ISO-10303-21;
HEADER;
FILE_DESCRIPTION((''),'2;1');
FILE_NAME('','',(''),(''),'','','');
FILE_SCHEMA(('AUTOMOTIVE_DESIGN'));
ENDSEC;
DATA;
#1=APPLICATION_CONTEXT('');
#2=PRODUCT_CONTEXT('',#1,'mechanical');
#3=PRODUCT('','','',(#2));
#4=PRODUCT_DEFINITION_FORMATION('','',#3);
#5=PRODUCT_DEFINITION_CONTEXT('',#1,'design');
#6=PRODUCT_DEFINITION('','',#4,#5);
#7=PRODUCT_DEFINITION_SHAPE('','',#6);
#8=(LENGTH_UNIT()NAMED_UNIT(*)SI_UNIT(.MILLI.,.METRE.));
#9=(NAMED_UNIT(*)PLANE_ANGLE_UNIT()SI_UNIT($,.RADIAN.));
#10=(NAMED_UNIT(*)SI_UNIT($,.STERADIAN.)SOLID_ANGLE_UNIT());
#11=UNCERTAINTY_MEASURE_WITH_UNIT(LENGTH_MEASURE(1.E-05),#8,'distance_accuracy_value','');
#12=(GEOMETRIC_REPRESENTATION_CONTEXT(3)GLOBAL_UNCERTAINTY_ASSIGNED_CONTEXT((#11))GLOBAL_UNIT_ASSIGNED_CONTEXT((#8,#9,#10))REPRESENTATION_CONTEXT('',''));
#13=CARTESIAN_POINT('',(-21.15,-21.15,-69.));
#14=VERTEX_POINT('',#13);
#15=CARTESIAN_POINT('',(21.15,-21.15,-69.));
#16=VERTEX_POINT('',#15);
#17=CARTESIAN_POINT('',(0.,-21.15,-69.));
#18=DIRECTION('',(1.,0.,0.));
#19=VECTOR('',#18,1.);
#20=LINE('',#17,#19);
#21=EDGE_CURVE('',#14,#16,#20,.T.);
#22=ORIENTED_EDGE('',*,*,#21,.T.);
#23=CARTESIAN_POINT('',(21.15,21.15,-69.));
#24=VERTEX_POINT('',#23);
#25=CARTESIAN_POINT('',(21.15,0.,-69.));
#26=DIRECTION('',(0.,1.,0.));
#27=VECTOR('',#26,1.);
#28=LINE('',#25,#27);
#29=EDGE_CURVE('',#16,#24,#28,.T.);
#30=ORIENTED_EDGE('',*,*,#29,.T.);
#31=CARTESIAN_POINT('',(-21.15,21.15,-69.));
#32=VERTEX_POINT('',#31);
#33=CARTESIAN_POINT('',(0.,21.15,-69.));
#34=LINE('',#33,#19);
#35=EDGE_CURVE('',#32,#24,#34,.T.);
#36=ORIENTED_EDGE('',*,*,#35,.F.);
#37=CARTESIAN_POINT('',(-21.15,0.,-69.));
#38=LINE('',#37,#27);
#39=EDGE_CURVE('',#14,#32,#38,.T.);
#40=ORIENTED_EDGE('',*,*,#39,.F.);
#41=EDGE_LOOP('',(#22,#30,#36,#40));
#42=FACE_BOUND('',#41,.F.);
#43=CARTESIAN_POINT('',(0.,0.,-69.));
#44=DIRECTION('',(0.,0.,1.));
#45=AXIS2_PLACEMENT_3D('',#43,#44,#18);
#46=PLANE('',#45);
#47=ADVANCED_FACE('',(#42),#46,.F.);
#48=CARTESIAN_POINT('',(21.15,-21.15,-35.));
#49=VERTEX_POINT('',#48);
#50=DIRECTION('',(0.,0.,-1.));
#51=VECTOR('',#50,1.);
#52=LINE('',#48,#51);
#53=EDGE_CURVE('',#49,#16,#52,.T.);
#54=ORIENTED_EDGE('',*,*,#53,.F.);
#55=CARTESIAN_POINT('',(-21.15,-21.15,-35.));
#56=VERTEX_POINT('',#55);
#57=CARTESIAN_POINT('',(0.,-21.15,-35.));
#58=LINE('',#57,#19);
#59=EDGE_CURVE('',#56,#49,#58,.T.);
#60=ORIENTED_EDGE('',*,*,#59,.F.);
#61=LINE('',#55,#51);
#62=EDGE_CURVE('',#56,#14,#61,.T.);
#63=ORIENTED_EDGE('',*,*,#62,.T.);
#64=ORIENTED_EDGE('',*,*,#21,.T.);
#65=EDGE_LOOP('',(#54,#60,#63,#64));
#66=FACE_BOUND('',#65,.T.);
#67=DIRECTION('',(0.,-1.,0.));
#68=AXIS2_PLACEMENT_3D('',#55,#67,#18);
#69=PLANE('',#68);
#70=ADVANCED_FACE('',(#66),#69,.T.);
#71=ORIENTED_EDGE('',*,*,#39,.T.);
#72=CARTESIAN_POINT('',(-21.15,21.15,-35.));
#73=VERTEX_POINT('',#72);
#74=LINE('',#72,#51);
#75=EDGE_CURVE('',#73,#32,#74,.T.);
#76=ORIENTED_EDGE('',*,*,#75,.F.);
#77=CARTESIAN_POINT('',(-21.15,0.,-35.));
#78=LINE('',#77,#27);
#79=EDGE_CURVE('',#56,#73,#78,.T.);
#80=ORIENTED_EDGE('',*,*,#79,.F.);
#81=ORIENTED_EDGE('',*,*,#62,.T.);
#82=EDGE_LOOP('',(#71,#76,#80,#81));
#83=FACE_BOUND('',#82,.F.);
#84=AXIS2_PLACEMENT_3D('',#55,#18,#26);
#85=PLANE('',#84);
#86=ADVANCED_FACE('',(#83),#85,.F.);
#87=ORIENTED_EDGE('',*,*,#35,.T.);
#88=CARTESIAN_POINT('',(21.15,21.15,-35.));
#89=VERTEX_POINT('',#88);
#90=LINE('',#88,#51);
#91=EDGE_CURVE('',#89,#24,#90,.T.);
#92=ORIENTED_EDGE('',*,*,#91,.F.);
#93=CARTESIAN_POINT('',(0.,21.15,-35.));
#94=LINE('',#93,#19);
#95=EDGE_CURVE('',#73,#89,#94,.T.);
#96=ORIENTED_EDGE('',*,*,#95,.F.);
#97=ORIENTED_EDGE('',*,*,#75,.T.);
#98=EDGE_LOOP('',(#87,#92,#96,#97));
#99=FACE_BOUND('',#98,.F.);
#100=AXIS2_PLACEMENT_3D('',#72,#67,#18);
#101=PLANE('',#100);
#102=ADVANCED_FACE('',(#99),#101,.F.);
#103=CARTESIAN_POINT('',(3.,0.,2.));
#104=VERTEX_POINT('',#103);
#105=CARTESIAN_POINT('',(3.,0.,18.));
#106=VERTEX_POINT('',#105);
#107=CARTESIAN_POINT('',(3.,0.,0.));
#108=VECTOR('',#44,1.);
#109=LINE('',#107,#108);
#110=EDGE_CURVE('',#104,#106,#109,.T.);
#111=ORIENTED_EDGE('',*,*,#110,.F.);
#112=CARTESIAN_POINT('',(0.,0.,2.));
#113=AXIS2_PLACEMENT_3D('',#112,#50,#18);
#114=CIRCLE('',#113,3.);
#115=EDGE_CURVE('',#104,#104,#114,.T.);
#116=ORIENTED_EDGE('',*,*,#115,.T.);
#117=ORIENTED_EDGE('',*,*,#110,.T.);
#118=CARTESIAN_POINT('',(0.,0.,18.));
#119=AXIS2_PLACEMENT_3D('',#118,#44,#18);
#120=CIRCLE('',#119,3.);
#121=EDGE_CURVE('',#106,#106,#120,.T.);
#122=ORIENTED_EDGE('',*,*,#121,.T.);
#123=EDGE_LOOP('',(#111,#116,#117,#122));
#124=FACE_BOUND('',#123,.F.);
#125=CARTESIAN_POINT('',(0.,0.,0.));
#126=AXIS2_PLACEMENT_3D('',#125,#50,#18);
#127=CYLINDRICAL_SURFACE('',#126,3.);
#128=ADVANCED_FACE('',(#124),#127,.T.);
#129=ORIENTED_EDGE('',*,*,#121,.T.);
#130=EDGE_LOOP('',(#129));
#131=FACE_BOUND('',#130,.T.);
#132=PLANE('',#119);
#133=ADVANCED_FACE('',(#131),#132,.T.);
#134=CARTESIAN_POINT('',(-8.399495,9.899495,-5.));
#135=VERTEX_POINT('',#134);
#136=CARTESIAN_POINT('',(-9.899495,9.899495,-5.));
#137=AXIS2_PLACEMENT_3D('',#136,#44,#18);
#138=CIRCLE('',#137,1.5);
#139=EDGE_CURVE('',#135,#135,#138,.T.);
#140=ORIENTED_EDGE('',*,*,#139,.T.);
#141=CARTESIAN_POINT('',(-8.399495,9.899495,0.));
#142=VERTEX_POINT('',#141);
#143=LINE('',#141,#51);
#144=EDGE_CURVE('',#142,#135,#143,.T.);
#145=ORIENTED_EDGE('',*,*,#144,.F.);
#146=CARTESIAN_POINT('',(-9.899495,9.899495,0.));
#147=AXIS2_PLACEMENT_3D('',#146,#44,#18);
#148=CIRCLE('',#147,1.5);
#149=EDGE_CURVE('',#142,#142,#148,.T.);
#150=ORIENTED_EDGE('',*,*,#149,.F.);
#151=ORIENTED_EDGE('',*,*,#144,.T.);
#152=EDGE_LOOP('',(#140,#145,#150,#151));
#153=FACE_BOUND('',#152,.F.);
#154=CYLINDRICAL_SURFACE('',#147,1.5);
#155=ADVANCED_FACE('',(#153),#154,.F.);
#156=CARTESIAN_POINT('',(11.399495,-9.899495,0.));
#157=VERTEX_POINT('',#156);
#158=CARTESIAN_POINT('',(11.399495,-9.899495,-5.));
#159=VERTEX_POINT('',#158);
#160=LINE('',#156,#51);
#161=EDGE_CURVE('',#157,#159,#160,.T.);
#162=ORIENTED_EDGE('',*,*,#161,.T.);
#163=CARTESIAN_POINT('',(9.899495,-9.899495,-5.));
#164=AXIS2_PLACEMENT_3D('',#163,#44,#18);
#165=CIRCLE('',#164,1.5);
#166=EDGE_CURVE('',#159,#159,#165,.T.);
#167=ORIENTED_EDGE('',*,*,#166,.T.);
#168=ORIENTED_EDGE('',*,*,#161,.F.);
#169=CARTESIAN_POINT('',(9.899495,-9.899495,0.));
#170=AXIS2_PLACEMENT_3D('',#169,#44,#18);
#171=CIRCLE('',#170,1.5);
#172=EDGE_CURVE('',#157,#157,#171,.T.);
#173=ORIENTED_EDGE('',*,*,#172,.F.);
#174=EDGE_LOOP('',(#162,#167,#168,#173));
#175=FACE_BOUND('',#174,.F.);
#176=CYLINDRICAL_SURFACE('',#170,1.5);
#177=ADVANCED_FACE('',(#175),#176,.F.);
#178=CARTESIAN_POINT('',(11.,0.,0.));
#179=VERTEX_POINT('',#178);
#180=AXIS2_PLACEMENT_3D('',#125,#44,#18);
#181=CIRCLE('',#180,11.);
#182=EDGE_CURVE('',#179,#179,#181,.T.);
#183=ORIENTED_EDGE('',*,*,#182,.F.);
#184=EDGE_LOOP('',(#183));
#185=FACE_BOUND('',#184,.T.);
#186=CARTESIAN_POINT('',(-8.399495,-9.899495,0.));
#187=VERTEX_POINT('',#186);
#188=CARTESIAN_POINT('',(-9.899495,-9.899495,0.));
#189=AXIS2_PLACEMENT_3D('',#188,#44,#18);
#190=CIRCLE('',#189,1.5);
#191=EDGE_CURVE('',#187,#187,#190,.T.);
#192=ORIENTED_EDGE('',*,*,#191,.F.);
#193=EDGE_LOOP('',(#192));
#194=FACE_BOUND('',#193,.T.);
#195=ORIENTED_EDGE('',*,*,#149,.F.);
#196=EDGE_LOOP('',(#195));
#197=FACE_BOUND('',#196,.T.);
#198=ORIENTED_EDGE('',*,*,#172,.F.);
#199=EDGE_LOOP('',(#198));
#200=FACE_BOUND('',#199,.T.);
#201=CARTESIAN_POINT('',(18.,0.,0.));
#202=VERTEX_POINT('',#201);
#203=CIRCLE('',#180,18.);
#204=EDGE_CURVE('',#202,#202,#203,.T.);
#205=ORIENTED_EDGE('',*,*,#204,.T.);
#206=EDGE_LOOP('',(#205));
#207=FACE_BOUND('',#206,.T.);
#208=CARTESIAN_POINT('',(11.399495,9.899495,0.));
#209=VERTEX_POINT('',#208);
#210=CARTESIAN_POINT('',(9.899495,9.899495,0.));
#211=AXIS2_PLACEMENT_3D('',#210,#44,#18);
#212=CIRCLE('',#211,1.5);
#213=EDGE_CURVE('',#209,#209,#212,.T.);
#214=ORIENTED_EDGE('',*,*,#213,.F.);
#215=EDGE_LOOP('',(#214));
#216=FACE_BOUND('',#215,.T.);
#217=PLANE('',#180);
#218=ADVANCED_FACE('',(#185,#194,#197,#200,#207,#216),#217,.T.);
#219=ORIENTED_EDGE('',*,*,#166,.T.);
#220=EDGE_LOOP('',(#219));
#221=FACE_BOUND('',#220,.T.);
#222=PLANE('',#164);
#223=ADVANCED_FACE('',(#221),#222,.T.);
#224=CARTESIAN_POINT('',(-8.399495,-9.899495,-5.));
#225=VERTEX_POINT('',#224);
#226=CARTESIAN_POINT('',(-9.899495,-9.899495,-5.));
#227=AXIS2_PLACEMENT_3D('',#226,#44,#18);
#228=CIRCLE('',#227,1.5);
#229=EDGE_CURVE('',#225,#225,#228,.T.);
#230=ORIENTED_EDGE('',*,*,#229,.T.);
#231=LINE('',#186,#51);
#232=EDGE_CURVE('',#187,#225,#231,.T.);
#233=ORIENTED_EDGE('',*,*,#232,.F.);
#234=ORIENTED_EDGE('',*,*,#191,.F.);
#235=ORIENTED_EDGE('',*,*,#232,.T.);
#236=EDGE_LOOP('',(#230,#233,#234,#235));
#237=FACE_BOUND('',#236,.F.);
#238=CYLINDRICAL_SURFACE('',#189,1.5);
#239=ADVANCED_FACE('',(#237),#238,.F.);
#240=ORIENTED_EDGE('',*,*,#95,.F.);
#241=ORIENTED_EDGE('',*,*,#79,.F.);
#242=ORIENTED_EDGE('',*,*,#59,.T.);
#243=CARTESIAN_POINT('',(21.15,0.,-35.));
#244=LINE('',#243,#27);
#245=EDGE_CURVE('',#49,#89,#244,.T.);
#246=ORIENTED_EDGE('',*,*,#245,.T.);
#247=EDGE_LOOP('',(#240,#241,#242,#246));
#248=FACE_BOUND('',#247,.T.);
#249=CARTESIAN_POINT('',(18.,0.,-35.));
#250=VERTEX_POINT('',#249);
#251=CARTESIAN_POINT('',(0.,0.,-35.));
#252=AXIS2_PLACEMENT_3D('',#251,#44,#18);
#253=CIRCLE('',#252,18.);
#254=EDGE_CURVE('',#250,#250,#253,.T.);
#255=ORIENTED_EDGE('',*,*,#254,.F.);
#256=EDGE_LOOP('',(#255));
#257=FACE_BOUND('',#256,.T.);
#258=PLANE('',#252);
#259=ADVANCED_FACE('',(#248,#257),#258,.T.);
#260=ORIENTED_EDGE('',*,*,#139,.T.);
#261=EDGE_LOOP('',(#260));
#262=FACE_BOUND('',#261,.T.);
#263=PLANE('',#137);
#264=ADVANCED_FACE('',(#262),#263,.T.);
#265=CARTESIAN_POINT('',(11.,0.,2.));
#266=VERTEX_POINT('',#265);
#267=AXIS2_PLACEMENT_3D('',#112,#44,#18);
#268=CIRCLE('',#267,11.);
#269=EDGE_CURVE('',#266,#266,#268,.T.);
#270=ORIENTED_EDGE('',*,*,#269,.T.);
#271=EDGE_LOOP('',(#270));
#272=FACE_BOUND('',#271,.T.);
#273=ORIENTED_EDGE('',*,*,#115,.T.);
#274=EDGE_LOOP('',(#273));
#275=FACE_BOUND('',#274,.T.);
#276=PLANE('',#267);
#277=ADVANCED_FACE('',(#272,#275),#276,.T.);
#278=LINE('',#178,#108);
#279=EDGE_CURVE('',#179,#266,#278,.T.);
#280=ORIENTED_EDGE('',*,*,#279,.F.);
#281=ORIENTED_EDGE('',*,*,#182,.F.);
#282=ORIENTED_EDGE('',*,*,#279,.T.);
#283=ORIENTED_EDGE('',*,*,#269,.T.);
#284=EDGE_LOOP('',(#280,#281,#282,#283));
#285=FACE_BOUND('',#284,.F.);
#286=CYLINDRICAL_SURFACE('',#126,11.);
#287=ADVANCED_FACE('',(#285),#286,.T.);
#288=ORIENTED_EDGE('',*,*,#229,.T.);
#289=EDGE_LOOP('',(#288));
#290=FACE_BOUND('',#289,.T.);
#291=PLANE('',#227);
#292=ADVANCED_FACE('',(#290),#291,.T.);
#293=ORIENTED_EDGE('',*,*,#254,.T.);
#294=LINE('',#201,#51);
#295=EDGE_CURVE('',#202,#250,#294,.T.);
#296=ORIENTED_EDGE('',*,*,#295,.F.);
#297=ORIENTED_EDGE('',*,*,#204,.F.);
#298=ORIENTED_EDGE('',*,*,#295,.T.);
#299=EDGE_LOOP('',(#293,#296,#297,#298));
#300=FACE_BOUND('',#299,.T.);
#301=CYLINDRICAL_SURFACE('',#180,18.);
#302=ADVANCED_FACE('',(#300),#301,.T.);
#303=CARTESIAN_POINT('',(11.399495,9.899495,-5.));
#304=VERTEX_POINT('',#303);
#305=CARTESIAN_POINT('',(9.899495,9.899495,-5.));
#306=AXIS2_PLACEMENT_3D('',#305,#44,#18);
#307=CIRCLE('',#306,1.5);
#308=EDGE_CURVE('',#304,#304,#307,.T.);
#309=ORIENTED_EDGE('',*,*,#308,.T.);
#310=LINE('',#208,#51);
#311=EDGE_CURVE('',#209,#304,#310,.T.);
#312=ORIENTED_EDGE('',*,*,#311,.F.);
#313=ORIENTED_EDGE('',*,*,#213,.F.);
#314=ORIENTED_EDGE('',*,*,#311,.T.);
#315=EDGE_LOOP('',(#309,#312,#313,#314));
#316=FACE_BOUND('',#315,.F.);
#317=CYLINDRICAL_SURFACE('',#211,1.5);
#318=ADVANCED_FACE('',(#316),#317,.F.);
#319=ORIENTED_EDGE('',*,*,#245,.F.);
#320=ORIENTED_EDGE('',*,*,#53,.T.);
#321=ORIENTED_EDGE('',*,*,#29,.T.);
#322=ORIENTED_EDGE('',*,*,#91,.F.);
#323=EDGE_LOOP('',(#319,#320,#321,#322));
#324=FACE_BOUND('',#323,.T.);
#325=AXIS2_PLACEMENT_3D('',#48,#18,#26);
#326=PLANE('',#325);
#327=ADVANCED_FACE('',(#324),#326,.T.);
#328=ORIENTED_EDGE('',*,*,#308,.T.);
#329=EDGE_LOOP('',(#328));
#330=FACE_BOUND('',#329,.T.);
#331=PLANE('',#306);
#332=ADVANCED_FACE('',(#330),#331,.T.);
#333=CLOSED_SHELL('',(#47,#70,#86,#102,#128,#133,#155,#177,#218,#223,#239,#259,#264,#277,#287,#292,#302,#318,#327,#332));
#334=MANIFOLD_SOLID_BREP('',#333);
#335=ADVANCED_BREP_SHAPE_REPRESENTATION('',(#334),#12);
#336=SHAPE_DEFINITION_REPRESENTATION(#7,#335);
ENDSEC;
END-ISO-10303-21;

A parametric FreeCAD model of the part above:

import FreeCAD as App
import Part
import Sketcher
from FreeCAD import Vector
Q = App.Units.Quantity


def add_polygon(sketch, points):
    """Adds a closed chain of lines whose ends are joined by coincident constraints."""
    first, n = sketch.GeometryCount, len(points)
    for a, b in zip(points, points[1:] + points[:1]):
        sketch.addGeometry(Part.LineSegment(App.Vector(*a, 0), App.Vector(*b, 0)), False)
    for i in range(n):
        sketch.addConstraint(Sketcher.Constraint("Coincident", first + i, 2, first + (i + 1) % n, 1))

doc = App.newDocument("Part")
body = doc.addObject("PartDesign::Body", "Body")

# Sketch on XY plane
sketch1 = doc.addObject("Sketcher::SketchObject", "Sketch")
body.addObject(sketch1)
sketch1.AttachmentSupport = (doc.XY_Plane, [""])
sketch1.MapMode = "FlatFace"
sketch1.addGeometry(Part.Circle(Vector(0, 0, 0), Vector(0, 0, 1), 18), False)
sketch1.addConstraint([
    Sketcher.Constraint("Coincident", 0, 3, -1, 1),
    Sketcher.Constraint("Diameter", 0, Q("36 mm")),
])
pad1 = doc.addObject("PartDesign::Pad", "Pad")
body.addObject(pad1)
pad1.Profile = sketch1
pad1.Length = 35
pad1.Reversed = True

# Sketch on XY plane
sketch2 = doc.addObject("Sketcher::SketchObject", "Sketch001")
body.addObject(sketch2)
sketch2.AttachmentSupport = (doc.XY_Plane, [""])
sketch2.MapMode = "FlatFace"
sketch2.AttachmentOffset = App.Placement(Vector(0, 0, -35), App.Rotation())
add_polygon(sketch2, [(-21, 21), (-21, -21), (21, -21), (21, 21)])  # lines 0-3
sketch2.addConstraint([
    Sketcher.Constraint("Vertical", 0),
    Sketcher.Constraint("Horizontal", 1),
    Sketcher.Constraint("Vertical", 2),
    Sketcher.Constraint("Horizontal", 3),
    Sketcher.Constraint("Symmetric", 0, 2, 2, 2, -1, 1),
    Sketcher.Constraint("Equal", 3, 0),
    Sketcher.Constraint("DistanceX", 1, 1, 1, 2, Q("42.3 mm")),
])
pad2 = doc.addObject("PartDesign::Pad", "Pad001")
body.addObject(pad2)
pad2.Profile = sketch2
pad2.Length = 34
pad2.Reversed = True

# Sketch on XY plane
sketch3 = doc.addObject("Sketcher::SketchObject", "Sketch002")
body.addObject(sketch3)
sketch3.AttachmentSupport = (doc.XY_Plane, [""])
sketch3.MapMode = "FlatFace"
sketch3.addGeometry(Part.Circle(Vector(0, 0, 0), Vector(0, 0, 1), 11), False)
sketch3.addConstraint([
    Sketcher.Constraint("Coincident", 0, 3, -1, 1),
    Sketcher.Constraint("Diameter", 0, Q("22 mm")),
])
pad3 = doc.addObject("PartDesign::Pad", "Pad002")
body.addObject(pad3)
pad3.Profile = sketch3
pad3.Length = 2

# Sketch on XY plane
sketch4 = doc.addObject("Sketcher::SketchObject", "Sketch003")
body.addObject(sketch4)
sketch4.AttachmentSupport = (doc.XY_Plane, [""])
sketch4.MapMode = "FlatFace"
sketch4.addGeometry(Part.Circle(Vector(0, 0, 0), Vector(0, 0, 1), 3), False)
sketch4.addConstraint([
    Sketcher.Constraint("Coincident", 0, 3, -1, 1),
    Sketcher.Constraint("Diameter", 0, Q("6 mm")),
])
pad4 = doc.addObject("PartDesign::Pad", "Pad003")
body.addObject(pad4)
pad4.Profile = sketch4
pad4.Length = 18

# Sketch on XY plane
sketch5 = doc.addObject("Sketcher::SketchObject", "Sketch004")
body.addObject(sketch5)
sketch5.AttachmentSupport = (doc.XY_Plane, [""])
sketch5.MapMode = "FlatFace"
sketch5.addGeometry([
    Part.Circle(Vector(-9.9, 9.9, 0), Vector(0, 0, 1), 1.5),
    Part.Circle(Vector(9.9, 9.9, 0), Vector(0, 0, 1), 1.5),
    Part.Circle(Vector(9.9, -9.9, 0), Vector(0, 0, 1), 1.5),
    Part.Circle(Vector(-9.9, -9.9, 0), Vector(0, 0, 1), 1.5),
], False)
sketch5.addConstraint([
    Sketcher.Constraint("Equal", 0, 1),
    Sketcher.Constraint("Equal", 1, 2),
    Sketcher.Constraint("Equal", 2, 3),
    Sketcher.Constraint("Symmetric", 0, 3, 2, 3, -1, 1),
    Sketcher.Constraint("Symmetric", 1, 3, 3, 3, -1, 1),
    Sketcher.Constraint("Symmetric", 0, 3, 1, 3, -2),
    Sketcher.Constraint("Diameter", 0, Q("3 mm")),
    Sketcher.Constraint("DistanceX", 0, 3, 1, 3, Q("19.79899 mm")),
    Sketcher.Constraint("DistanceY", 2, 3, 1, 3, Q("19.79899 mm")),
])
pocket1 = doc.addObject("PartDesign::Pocket", "Pocket")
body.addObject(pocket1)
pocket1.Profile = sketch5
pocket1.Length = 5

doc.recompute()
